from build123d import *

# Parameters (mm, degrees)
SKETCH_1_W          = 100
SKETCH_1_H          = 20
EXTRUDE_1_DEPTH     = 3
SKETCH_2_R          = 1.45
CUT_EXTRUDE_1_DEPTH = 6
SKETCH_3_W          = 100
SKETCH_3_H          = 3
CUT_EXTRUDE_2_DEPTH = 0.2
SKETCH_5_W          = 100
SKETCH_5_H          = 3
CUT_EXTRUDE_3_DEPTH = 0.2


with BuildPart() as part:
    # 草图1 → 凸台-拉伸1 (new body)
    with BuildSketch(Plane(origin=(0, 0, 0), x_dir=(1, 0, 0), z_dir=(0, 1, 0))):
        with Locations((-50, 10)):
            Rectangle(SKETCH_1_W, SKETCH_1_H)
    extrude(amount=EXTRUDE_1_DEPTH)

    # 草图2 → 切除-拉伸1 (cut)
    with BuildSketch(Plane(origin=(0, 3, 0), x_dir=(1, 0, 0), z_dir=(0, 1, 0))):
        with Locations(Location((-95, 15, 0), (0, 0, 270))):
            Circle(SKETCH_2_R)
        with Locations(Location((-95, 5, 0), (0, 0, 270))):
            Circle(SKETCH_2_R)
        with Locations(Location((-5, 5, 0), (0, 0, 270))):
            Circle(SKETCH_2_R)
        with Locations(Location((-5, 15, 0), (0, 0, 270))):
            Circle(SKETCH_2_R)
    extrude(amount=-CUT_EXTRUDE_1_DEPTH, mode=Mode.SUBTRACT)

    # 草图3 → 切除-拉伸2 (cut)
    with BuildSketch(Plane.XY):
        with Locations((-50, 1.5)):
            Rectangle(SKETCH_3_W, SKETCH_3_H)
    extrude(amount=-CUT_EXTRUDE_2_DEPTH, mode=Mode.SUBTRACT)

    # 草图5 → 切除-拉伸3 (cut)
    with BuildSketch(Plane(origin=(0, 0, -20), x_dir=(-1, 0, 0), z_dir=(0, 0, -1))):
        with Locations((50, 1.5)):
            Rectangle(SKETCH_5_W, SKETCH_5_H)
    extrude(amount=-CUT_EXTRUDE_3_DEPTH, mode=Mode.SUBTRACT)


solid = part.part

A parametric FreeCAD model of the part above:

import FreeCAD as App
import Part
import Sketcher
from FreeCAD import Vector
Q = App.Units.Quantity

doc = App.newDocument("Part")
body = doc.addObject("PartDesign::Body", "Body")

# Sketch on XZ plane
sketch1 = body.newObject("Sketcher::SketchObject", "Sketch")
sketch1.AttachmentSupport = (doc.getObject("XZ_Plane"), [""])
sketch1.MapMode = "FlatFace"
sketch1.addGeometry([
    Part.LineSegment(Vector(-100, -20, 0), Vector(-100, 0, 0)),
    Part.LineSegment(Vector(-100, 0, 0), Vector(0, 0, 0)),
    Part.LineSegment(Vector(0, 0, 0), Vector(0, -20, 0)),
    Part.LineSegment(Vector(0, -20, 0), Vector(-100, -20, 0)),
], False)
sketch1.addConstraint([
    Sketcher.Constraint("Coincident", 0, 2, 1, 1),
    Sketcher.Constraint("Coincident", 1, 2, 2, 1),
    Sketcher.Constraint("Coincident", 2, 2, 3, 1),
    Sketcher.Constraint("Coincident", 3, 2, 0, 1),
    Sketcher.Constraint("Vertical", 0),
    Sketcher.Constraint("Horizontal", 1),
    Sketcher.Constraint("Vertical", 2),
    Sketcher.Constraint("Horizontal", 3),
    Sketcher.Constraint("Coincident", 1, 2, -1, 1),
    Sketcher.Constraint("DistanceX", 1, 1, 1, 2, Q("100 mm")),
    Sketcher.Constraint("DistanceY", 0, 1, 0, 2, Q("20 mm")),
])
pad1 = body.newObject("PartDesign::Pad", "Pad")
pad1.Profile = sketch1
pad1.Length = 3
pad1.Reversed = True

# Sketch on XZ plane
sketch2 = body.newObject("Sketcher::SketchObject", "Sketch001")
sketch2.AttachmentSupport = (doc.getObject("XZ_Plane"), [""])
sketch2.MapMode = "FlatFace"
sketch2.AttachmentOffset = App.Placement(Vector(0, 0, -3), App.Rotation())
sketch2.addGeometry([
    Part.Circle(Vector(-95, -15, 0), Vector(0, 0, 1), 1.45),
    Part.Circle(Vector(-95, -5, 0), Vector(0, 0, 1), 1.45),
    Part.Circle(Vector(-5, -5, 0), Vector(0, 0, 1), 1.45),
    Part.Circle(Vector(-5, -15, 0), Vector(0, 0, 1), 1.45),
], False)
sketch2.addConstraint([
    Sketcher.Constraint("Equal", 0, 1),
    Sketcher.Constraint("Equal", 1, 2),
    Sketcher.Constraint("Equal", 2, 3),
    Sketcher.Constraint("Horizontal", 1, 3, 2, 3),
    Sketcher.Constraint("Horizontal", 0, 3, 3, 3),
    Sketcher.Constraint("Vertical", 0, 3, 1, 3),
    Sketcher.Constraint("Vertical", 2, 3, 3, 3),
    Sketcher.Constraint("Diameter", 0, Q("2.9 mm")),
    Sketcher.Constraint("DistanceX", 0, 3, -1, 1, Q("95 mm")),
    Sketcher.Constraint("DistanceY", 0, 3, -1, 1, Q("15 mm")),
    Sketcher.Constraint("DistanceY", 1, 3, -1, 1, Q("5 mm")),
    Sketcher.Constraint("DistanceX", 2, 3, -1, 1, Q("5 mm")),
])
pocket1 = body.newObject("PartDesign::Pocket", "Pocket")
pocket1.Profile = sketch2
pocket1.Length = 6
pocket1.Reversed = True

# Sketch on XY plane
sketch3 = body.newObject("Sketcher::SketchObject", "Sketch002")
sketch3.AttachmentSupport = (doc.getObject("XY_Plane"), [""])
sketch3.MapMode = "FlatFace"
sketch3.addGeometry([
    Part.LineSegment(Vector(-100, 3, 0), Vector(-100, 0, 0)),
    Part.LineSegment(Vector(-100, 0, 0), Vector(0, 0, 0)),
    Part.LineSegment(Vector(0, 0, 0), Vector(0, 3, 0)),
    Part.LineSegment(Vector(0, 3, 0), Vector(-100, 3, 0)),
], False)
sketch3.addConstraint([
    Sketcher.Constraint("Coincident", 0, 2, 1, 1),
    Sketcher.Constraint("Coincident", 1, 2, 2, 1),
    Sketcher.Constraint("Coincident", 2, 2, 3, 1),
    Sketcher.Constraint("Coincident", 3, 2, 0, 1),
    Sketcher.Constraint("Vertical", 0),
    Sketcher.Constraint("Horizontal", 1),
    Sketcher.Constraint("Vertical", 2),
    Sketcher.Constraint("Horizontal", 3),
    Sketcher.Constraint("Coincident", 1, 2, -1, 1),
    Sketcher.Constraint("DistanceX", 1, 1, 1, 2, Q("100 mm")),
    Sketcher.Constraint("DistanceY", 0, 2, 0, 1, Q("3 mm")),
])
pocket2 = body.newObject("PartDesign::Pocket", "Pocket001")
pocket2.Profile = sketch3
pocket2.Length = 0.2

# Sketch on XY plane
sketch4 = body.newObject("Sketcher::SketchObject", "Sketch003")
sketch4.AttachmentSupport = (doc.getObject("XY_Plane"), [""])
sketch4.MapMode = "FlatFace"
sketch4.AttachmentOffset = App.Placement(Vector(0, 0, -20), App.Rotation())
sketch4.addGeometry([
    Part.LineSegment(Vector(0, 3, 0), Vector(0, 0, 0)),
    Part.LineSegment(Vector(0, 0, 0), Vector(-100, 0, 0)),
    Part.LineSegment(Vector(-100, 0, 0), Vector(-100, 3, 0)),
    Part.LineSegment(Vector(-100, 3, 0), Vector(0, 3, 0)),
], False)
sketch4.addConstraint([
    Sketcher.Constraint("Coincident", 0, 2, 1, 1),
    Sketcher.Constraint("Coincident", 1, 2, 2, 1),
    Sketcher.Constraint("Coincident", 2, 2, 3, 1),
    Sketcher.Constraint("Coincident", 3, 2, 0, 1),
    Sketcher.Constraint("Vertical", 0),
    Sketcher.Constraint("Horizontal", 1),
    Sketcher.Constraint("Vertical", 2),
    Sketcher.Constraint("Horizontal", 3),
    Sketcher.Constraint("Coincident", 0, 2, -1, 1),
    Sketcher.Constraint("DistanceX", 1, 2, 1, 1, Q("100 mm")),
    Sketcher.Constraint("DistanceY", 0, 2, 0, 1, Q("3 mm")),
])
pocket3 = body.newObject("PartDesign::Pocket", "Pocket002")
pocket3.Profile = sketch4
pocket3.Length = 0.2
pocket3.Reversed = True

doc.recompute()
